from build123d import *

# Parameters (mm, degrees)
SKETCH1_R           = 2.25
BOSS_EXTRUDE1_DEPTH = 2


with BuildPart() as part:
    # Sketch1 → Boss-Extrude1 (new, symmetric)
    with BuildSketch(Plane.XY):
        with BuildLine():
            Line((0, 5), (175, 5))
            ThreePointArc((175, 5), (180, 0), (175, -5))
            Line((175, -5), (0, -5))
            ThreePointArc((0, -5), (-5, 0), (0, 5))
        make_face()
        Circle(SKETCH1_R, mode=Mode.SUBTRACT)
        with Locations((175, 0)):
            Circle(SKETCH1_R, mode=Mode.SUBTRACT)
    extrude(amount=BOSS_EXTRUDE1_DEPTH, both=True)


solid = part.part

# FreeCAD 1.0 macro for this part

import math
import FreeCAD as App
import Part
import Sketcher
from FreeCAD import Vector
Q = App.Units.Quantity

doc = App.newDocument("Part")
body = doc.addObject("PartDesign::Body", "Body")

# Sketch on XY plane
sketch1 = body.newObject("Sketcher::SketchObject", "Sketch")
sketch1.AttachmentSupport = (doc.getObject("XY_Plane"), [""])
sketch1.MapMode = "FlatFace"
sketch1.addGeometry([
    Part.LineSegment(Vector(175, 5, 0), Vector(0, 5, 0)),  # 0
    Part.ArcOfCircle(Part.Circle(Vector(0, 0, 0), Vector(0, 0, 1), 5), math.radians(90), math.radians(270)),  # 1
    Part.LineSegment(Vector(0, -5, 0), Vector(175, -5, 0)),  # 2
    Part.ArcOfCircle(Part.Circle(Vector(175, 0, 0), Vector(0, 0, 1), 5), math.radians(-90), math.radians(90)),  # 3
    Part.Circle(Vector(175, 0, 0), Vector(0, 0, 1), 2.2),  # 4
    Part.Circle(Vector(0, 0, 0), Vector(0, 0, 1), 2.2),  # 5
], False)
sketch1.addConstraint([
    Sketcher.Constraint("Tangent", 0, 2, 1, 1),
    Sketcher.Constraint("Tangent", 1, 2, 2, 1),
    Sketcher.Constraint("Tangent", 2, 2, 3, 1),
    Sketcher.Constraint("Tangent", 3, 2, 0, 1),
    Sketcher.Constraint("Horizontal", 0),
    Sketcher.Constraint("Horizontal", 2),
    Sketcher.Constraint("Coincident", 1, 3, -1, 1),
    Sketcher.Constraint("Coincident", 5, 3, -1, 1),
    Sketcher.Constraint("Coincident", 4, 3, 3, 3),
    Sketcher.Constraint("Equal", 4, 5),
    Sketcher.Constraint("Radius", 1, Q("5 mm")),
    Sketcher.Constraint("Diameter", 4, Q("4.5 mm")),
    Sketcher.Constraint("DistanceX", 0, 2, 0, 1, Q("175 mm")),
])
pad1 = body.newObject("PartDesign::Pad", "Pad")
pad1.Profile = sketch1
pad1.Length = 4
pad1.Midplane = True

doc.recompute()
